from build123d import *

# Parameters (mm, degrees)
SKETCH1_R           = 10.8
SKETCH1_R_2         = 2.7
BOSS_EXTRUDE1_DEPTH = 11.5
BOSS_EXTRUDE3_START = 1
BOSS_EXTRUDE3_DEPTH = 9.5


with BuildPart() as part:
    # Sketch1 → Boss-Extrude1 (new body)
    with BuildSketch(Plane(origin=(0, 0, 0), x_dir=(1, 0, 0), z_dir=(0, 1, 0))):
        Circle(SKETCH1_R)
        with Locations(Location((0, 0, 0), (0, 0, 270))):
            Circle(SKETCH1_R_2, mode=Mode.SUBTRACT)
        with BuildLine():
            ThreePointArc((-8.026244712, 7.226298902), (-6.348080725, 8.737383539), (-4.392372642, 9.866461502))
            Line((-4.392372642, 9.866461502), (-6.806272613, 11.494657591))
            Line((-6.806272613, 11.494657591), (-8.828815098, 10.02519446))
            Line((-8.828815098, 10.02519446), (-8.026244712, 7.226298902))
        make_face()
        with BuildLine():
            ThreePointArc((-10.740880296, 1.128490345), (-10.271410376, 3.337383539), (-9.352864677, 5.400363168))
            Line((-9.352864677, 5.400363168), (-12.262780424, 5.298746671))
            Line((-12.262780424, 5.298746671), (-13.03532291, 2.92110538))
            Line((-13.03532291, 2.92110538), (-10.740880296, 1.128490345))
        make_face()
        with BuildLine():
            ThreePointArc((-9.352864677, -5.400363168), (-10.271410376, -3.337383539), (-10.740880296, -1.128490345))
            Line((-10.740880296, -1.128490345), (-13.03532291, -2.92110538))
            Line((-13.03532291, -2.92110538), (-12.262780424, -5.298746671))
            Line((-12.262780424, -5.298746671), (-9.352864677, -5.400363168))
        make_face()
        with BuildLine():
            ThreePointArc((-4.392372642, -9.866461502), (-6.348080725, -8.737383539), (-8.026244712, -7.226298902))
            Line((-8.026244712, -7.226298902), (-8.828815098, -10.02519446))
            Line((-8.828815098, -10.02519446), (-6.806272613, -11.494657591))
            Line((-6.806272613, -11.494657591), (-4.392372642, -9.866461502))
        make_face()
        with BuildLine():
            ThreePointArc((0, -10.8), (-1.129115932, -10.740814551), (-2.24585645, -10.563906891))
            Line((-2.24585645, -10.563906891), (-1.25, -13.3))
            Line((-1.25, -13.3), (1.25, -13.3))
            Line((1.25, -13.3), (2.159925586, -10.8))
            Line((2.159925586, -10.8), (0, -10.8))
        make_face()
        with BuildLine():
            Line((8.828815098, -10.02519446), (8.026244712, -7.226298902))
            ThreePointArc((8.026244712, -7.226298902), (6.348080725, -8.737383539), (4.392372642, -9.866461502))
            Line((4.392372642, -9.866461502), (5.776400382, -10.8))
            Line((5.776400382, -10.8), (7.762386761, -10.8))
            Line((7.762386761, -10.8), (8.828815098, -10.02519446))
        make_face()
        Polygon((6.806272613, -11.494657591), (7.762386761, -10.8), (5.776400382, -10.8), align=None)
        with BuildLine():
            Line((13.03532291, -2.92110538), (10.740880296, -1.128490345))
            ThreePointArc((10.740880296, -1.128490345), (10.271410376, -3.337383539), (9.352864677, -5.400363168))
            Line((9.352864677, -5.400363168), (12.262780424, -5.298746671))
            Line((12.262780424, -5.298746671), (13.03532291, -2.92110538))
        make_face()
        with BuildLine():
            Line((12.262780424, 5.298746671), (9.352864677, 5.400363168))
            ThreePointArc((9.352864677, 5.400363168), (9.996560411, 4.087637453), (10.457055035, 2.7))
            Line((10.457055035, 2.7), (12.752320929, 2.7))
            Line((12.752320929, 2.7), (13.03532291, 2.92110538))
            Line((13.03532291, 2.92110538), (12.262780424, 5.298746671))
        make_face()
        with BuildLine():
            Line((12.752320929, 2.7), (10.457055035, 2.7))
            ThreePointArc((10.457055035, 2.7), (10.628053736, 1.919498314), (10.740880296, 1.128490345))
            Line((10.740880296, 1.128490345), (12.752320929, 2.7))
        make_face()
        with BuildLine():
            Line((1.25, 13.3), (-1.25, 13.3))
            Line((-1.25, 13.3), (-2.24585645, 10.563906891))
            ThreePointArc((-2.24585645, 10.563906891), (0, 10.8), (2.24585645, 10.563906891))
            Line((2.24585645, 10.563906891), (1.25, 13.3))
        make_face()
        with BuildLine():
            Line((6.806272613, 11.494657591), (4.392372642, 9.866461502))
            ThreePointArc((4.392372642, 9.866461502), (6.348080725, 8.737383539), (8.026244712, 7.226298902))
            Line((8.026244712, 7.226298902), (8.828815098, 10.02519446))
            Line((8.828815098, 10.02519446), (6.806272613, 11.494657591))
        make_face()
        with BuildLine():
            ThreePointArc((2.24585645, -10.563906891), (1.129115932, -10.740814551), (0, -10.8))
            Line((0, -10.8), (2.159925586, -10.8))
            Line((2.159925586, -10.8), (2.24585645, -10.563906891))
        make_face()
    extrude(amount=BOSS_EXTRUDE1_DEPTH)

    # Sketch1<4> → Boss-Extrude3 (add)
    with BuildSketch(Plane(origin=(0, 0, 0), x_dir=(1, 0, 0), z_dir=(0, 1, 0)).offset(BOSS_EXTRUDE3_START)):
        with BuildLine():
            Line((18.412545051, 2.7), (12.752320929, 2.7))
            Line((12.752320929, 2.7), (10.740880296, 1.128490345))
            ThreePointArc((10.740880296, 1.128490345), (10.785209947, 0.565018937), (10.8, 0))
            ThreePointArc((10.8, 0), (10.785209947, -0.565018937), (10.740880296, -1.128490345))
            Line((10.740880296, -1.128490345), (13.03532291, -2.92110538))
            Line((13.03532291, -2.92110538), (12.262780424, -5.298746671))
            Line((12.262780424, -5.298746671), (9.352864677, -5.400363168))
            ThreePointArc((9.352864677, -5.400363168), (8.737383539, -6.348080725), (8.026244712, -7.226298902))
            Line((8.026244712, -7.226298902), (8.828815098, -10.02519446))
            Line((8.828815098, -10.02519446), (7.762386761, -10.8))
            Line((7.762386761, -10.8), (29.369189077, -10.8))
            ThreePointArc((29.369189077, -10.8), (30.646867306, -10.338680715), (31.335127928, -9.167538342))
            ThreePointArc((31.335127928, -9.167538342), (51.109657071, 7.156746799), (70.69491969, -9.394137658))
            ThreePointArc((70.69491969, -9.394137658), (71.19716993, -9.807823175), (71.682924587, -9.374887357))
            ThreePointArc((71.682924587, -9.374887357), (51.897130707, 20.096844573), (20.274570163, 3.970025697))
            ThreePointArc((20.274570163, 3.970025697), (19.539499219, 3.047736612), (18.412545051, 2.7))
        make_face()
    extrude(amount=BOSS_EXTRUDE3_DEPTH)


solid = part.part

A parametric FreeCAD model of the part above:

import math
import FreeCAD as App
import Part
import Sketcher
from FreeCAD import Vector
Q = App.Units.Quantity

doc = App.newDocument("Part")
body = doc.addObject("PartDesign::Body", "Body")

sketch1 = doc.addObject("Sketcher::SketchObject", "Sketch")
body.addObject(sketch1)
sketch1.AttachmentSupport = (doc.XZ_Plane, [""])
sketch1.MapMode = "FlatFace"
sketch1.addGeometry(Part.LineSegment(Vector(-4.39, -9.87, 0), Vector(-6.81, -11.49, 0)), False)
sketch1.addGeometry(Part.LineSegment(Vector(-6.81, -11.49, 0), Vector(-8.83, -10.03, 0)), False)
sketch1.addGeometry(Part.LineSegment(Vector(-8.83, -10.03, 0), Vector(-8.03, -7.23, 0)), False)
sketch1.addGeometry(Part.ArcOfCircle(Part.Circle(Vector(0, 0, 0), Vector(0, 0, 1), 10.8), math.radians(-150), math.radians(-138)), False)
sketch1.addGeometry(Part.LineSegment(Vector(-9.35, -5.4, 0), Vector(-12.26, -5.3, 0)), False)
sketch1.addGeometry(Part.LineSegment(Vector(-12.26, -5.3, 0), Vector(-13.04, -2.92, 0)), False)
sketch1.addGeometry(Part.LineSegment(Vector(-13.04, -2.92, 0), Vector(-10.74, -1.13, 0)), False)
sketch1.addGeometry(Part.ArcOfCircle(Part.Circle(Vector(0, 0, 0), Vector(0, 0, 1), 10.8), math.radians(174), math.radians(186)), False)
sketch1.addGeometry(Part.LineSegment(Vector(-10.74, 1.13, 0), Vector(-13.04, 2.92, 0)), False)
sketch1.addGeometry(Part.LineSegment(Vector(-13.04, 2.92, 0), Vector(-12.26, 5.3, 0)), False)
sketch1.addGeometry(Part.LineSegment(Vector(-12.26, 5.3, 0), Vector(-9.35, 5.4, 0)), False)
sketch1.addGeometry(Part.ArcOfCircle(Part.Circle(Vector(0, 0, 0), Vector(0, 0, 1), 10.8), math.radians(138), math.radians(150)), False)
sketch1.addGeometry(Part.LineSegment(Vector(-8.03, 7.23, 0), Vector(-8.83, 10.03, 0)), False)
sketch1.addGeometry(Part.LineSegment(Vector(-8.83, 10.03, 0), Vector(-6.81, 11.49, 0)), False)
sketch1.addGeometry(Part.LineSegment(Vector(-6.81, 11.49, 0), Vector(-4.39, 9.87, 0)), False)
sketch1.addGeometry(Part.ArcOfCircle(Part.Circle(Vector(0, 0, 0), Vector(0, 0, 1), 10.8), math.radians(102), math.radians(114)), False)
sketch1.addGeometry(Part.LineSegment(Vector(-2.25, 10.56, 0), Vector(-1.25, 13.3, 0)), False)
sketch1.addGeometry(Part.LineSegment(Vector(-1.25, 13.3, 0), Vector(1.25, 13.3, 0)), False)
sketch1.addGeometry(Part.LineSegment(Vector(1.25, 13.3, 0), Vector(2.16, 10.8, 0)), False)
sketch1.addGeometry(Part.LineSegment(Vector(2.16, 10.8, 0), Vector(2.25, 10.56, 0)), False)
sketch1.addGeometry(Part.ArcOfCircle(Part.Circle(Vector(0, 0, 0), Vector(0, 0, 1), 10.8), math.radians(66), math.radians(78)), False)
sketch1.addGeometry(Part.LineSegment(Vector(4.39, 9.87, 0), Vector(5.78, 10.8, 0)), False)
sketch1.addGeometry(Part.LineSegment(Vector(5.78, 10.8, 0), Vector(6.81, 11.49, 0)), False)
sketch1.addGeometry(Part.LineSegment(Vector(6.81, 11.49, 0), Vector(7.76, 10.8, 0)), False)
sketch1.addGeometry(Part.LineSegment(Vector(7.76, 10.8, 0), Vector(8.83, 10.03, 0)), False)
sketch1.addGeometry(Part.LineSegment(Vector(8.83, 10.03, 0), Vector(8.03, 7.23, 0)), False)
sketch1.addGeometry(Part.ArcOfCircle(Part.Circle(Vector(0, 0, 0), Vector(0, 0, 1), 10.8), math.radians(30), math.radians(42)), False)
sketch1.addGeometry(Part.LineSegment(Vector(9.35, 5.4, 0), Vector(12.26, 5.3, 0)), False)
sketch1.addGeometry(Part.LineSegment(Vector(12.26, 5.3, 0), Vector(13.04, 2.92, 0)), False)
sketch1.addGeometry(Part.LineSegment(Vector(13.04, 2.92, 0), Vector(10.74, 1.13, 0)), False)
sketch1.addGeometry(Part.ArcOfCircle(Part.Circle(Vector(0, 0, 0), Vector(0, 0, 1), 10.8), math.radians(-6), math.radians(6)), False)
sketch1.addGeometry(Part.LineSegment(Vector(10.74, -1.13, 0), Vector(12.75, -2.7, 0)), False)
sketch1.addGeometry(Part.LineSegment(Vector(12.75, -2.7, 0), Vector(13.04, -2.92, 0)), False)
sketch1.addGeometry(Part.LineSegment(Vector(13.04, -2.92, 0), Vector(12.26, -5.3, 0)), False)
sketch1.addGeometry(Part.LineSegment(Vector(12.26, -5.3, 0), Vector(9.35, -5.4, 0)), False)
sketch1.addGeometry(Part.ArcOfCircle(Part.Circle(Vector(0, 0, 0), Vector(0, 0, 1), 10.8), math.radians(-42), math.radians(-30)), False)
sketch1.addGeometry(Part.LineSegment(Vector(8.03, -7.23, 0), Vector(8.83, -10.03, 0)), False)
sketch1.addGeometry(Part.LineSegment(Vector(8.83, -10.03, 0), Vector(6.81, -11.49, 0)), False)
sketch1.addGeometry(Part.LineSegment(Vector(6.81, -11.49, 0), Vector(4.39, -9.87, 0)), False)
sketch1.addGeometry(Part.ArcOfCircle(Part.Circle(Vector(0, 0, 0), Vector(0, 0, 1), 10.8), math.radians(-78), math.radians(-66)), False)
sketch1.addGeometry(Part.LineSegment(Vector(2.25, -10.56, 0), Vector(1.25, -13.3, 0)), False)
sketch1.addGeometry(Part.LineSegment(Vector(1.25, -13.3, 0), Vector(-1.25, -13.3, 0)), False)
sketch1.addGeometry(Part.LineSegment(Vector(-1.25, -13.3, 0), Vector(-2.25, -10.56, 0)), False)
sketch1.addGeometry(Part.ArcOfCircle(Part.Circle(Vector(0, 0, 0), Vector(0, 0, 1), 10.8), math.radians(-114), math.radians(-102)), False)
sketch1.addGeometry(Part.Circle(Vector(0, 0, 0), Vector(0, 0, 1), 2.7), False)
sketch1.addConstraint(Sketcher.Constraint("Coincident", 0, 2, 1, 1))
sketch1.addConstraint(Sketcher.Constraint("Coincident", 1, 2, 2, 1))
sketch1.addConstraint(Sketcher.Constraint("Coincident", 2, 2, 3, 2))
sketch1.addConstraint(Sketcher.Constraint("Coincident", 3, 1, 4, 1))
sketch1.addConstraint(Sketcher.Constraint("Coincident", 4, 2, 5, 1))
sketch1.addConstraint(Sketcher.Constraint("Coincident", 5, 2, 6, 1))
sketch1.addConstraint(Sketcher.Constraint("Coincident", 6, 2, 7, 2))
sketch1.addConstraint(Sketcher.Constraint("Coincident", 7, 1, 8, 1))
sketch1.addConstraint(Sketcher.Constraint("Coincident", 8, 2, 9, 1))
sketch1.addConstraint(Sketcher.Constraint("Coincident", 9, 2, 10, 1))
sketch1.addConstraint(Sketcher.Constraint("Coincident", 10, 2, 11, 2))
sketch1.addConstraint(Sketcher.Constraint("Coincident", 11, 1, 12, 1))
sketch1.addConstraint(Sketcher.Constraint("Coincident", 12, 2, 13, 1))
sketch1.addConstraint(Sketcher.Constraint("Coincident", 13, 2, 14, 1))
sketch1.addConstraint(Sketcher.Constraint("Coincident", 14, 2, 15, 2))
sketch1.addConstraint(Sketcher.Constraint("Coincident", 15, 1, 16, 1))
sketch1.addConstraint(Sketcher.Constraint("Coincident", 16, 2, 17, 1))
sketch1.addConstraint(Sketcher.Constraint("Coincident", 17, 2, 18, 1))
sketch1.addConstraint(Sketcher.Constraint("Coincident", 18, 2, 19, 1))
sketch1.addConstraint(Sketcher.Constraint("Coincident", 19, 2, 20, 2))
sketch1.addConstraint(Sketcher.Constraint("Coincident", 20, 1, 21, 1))
sketch1.addConstraint(Sketcher.Constraint("Coincident", 21, 2, 22, 1))
sketch1.addConstraint(Sketcher.Constraint("Coincident", 22, 2, 23, 1))
sketch1.addConstraint(Sketcher.Constraint("Coincident", 23, 2, 24, 1))
sketch1.addConstraint(Sketcher.Constraint("Coincident", 24, 2, 25, 1))
sketch1.addConstraint(Sketcher.Constraint("Coincident", 25, 2, 26, 2))
sketch1.addConstraint(Sketcher.Constraint("Coincident", 26, 1, 27, 1))
sketch1.addConstraint(Sketcher.Constraint("Coincident", 27, 2, 28, 1))
sketch1.addConstraint(Sketcher.Constraint("Coincident", 28, 2, 29, 1))
sketch1.addConstraint(Sketcher.Constraint("Coincident", 29, 2, 30, 2))
sketch1.addConstraint(Sketcher.Constraint("Coincident", 30, 1, 31, 1))
sketch1.addConstraint(Sketcher.Constraint("Coincident", 31, 2, 32, 1))
sketch1.addConstraint(Sketcher.Constraint("Coincident", 32, 2, 33, 1))
sketch1.addConstraint(Sketcher.Constraint("Coincident", 33, 2, 34, 1))
sketch1.addConstraint(Sketcher.Constraint("Coincident", 34, 2, 35, 2))
sketch1.addConstraint(Sketcher.Constraint("Coincident", 35, 1, 36, 1))
sketch1.addConstraint(Sketcher.Constraint("Coincident", 36, 2, 37, 1))
sketch1.addConstraint(Sketcher.Constraint("Coincident", 37, 2, 38, 1))
sketch1.addConstraint(Sketcher.Constraint("Coincident", 38, 2, 39, 2))
sketch1.addConstraint(Sketcher.Constraint("Coincident", 39, 1, 40, 1))
sketch1.addConstraint(Sketcher.Constraint("Coincident", 40, 2, 41, 1))
sketch1.addConstraint(Sketcher.Constraint("Coincident", 41, 2, 42, 1))
sketch1.addConstraint(Sketcher.Constraint("Coincident", 42, 2, 43, 2))
sketch1.addConstraint(Sketcher.Constraint("Coincident", 43, 1, 0, 1))
sketch1.addConstraint(Sketcher.Constraint("Horizontal", 17))
sketch1.addConstraint(Sketcher.Constraint("Horizontal", 41))
sketch1.addConstraint(Sketcher.Constraint("Coincident", 3, 3, -1, 1))
sketch1.addConstraint(Sketcher.Constraint("Coincident", 7, 3, -1, 1))
sketch1.addConstraint(Sketcher.Constraint("Coincident", 11, 3, -1, 1))
sketch1.addConstraint(Sketcher.Constraint("Coincident", 15, 3, -1, 1))
sketch1.addConstraint(Sketcher.Constraint("Coincident", 20, 3, -1, 1))
sketch1.addConstraint(Sketcher.Constraint("Coincident", 26, 3, -1, 1))
sketch1.addConstraint(Sketcher.Constraint("Coincident", 30, 3, -1, 1))
sketch1.addConstraint(Sketcher.Constraint("Coincident", 35, 3, -1, 1))
sketch1.addConstraint(Sketcher.Constraint("Coincident", 39, 3, -1, 1))
sketch1.addConstraint(Sketcher.Constraint("Coincident", 43, 3, -1, 1))
sketch1.addConstraint(Sketcher.Constraint("Coincident", 44, 3, -1, 1))
sketch1.addConstraint(Sketcher.Constraint("Equal", 3, 7))
sketch1.addConstraint(Sketcher.Constraint("Equal", 7, 11))
sketch1.addConstraint(Sketcher.Constraint("Equal", 11, 15))
sketch1.addConstraint(Sketcher.Constraint("Equal", 15, 20))
sketch1.addConstraint(Sketcher.Constraint("Equal", 20, 26))
sketch1.addConstraint(Sketcher.Constraint("Equal", 26, 30))
sketch1.addConstraint(Sketcher.Constraint("Equal", 30, 35))
sketch1.addConstraint(Sketcher.Constraint("Equal", 35, 39))
sketch1.addConstraint(Sketcher.Constraint("Equal", 39, 43))
sketch1.addConstraint(Sketcher.Constraint("Symmetric", 0, 2, 22, 2, -1, 1))
sketch1.addConstraint(Sketcher.Constraint("Symmetric", 1, 2, 24, 2, -1, 1))
sketch1.addConstraint(Sketcher.Constraint("Symmetric", 4, 2, 27, 2, -1, 1))
sketch1.addConstraint(Sketcher.Constraint("Symmetric", 5, 2, 28, 2, -1, 1))
sketch1.addConstraint(Sketcher.Constraint("Symmetric", 8, 2, 32, 2, -1, 1))
sketch1.addConstraint(Sketcher.Constraint("Symmetric", 9, 2, 33, 2, -1, 1))
sketch1.addConstraint(Sketcher.Constraint("Symmetric", 12, 2, 36, 2, -1, 1))
sketch1.addConstraint(Sketcher.Constraint("Symmetric", 13, 2, 37, 2, -1, 1))
sketch1.addConstraint(Sketcher.Constraint("Symmetric", 16, 2, 40, 2, -1, 1))
sketch1.addConstraint(Sketcher.Constraint("Symmetric", 13, 2, 22, 2, -2))
sketch1.addConstraint(Sketcher.Constraint("Symmetric", 12, 2, 24, 2, -2))
sketch1.addConstraint(Sketcher.Constraint("Symmetric", 9, 2, 27, 2, -2))
sketch1.addConstraint(Sketcher.Constraint("Symmetric", 8, 2, 28, 2, -2))
sketch1.addConstraint(Sketcher.Constraint("Parallel", 18, 19))
sketch1.addConstraint(Sketcher.Constraint("Parallel", 0, 21))
sketch1.addConstraint(Sketcher.Constraint("Parallel", 21, 22))
sketch1.addConstraint(Sketcher.Constraint("Parallel", 1, 23))
sketch1.addConstraint(Sketcher.Constraint("Parallel", 2, 25))
sketch1.addConstraint(Sketcher.Constraint("Parallel", 4, 27))
sketch1.addConstraint(Sketcher.Constraint("Parallel", 6, 29))
sketch1.addConstraint(Sketcher.Constraint("Parallel", 8, 31))
sketch1.addConstraint(Sketcher.Constraint("Parallel", 31, 32))
sketch1.addConstraint(Sketcher.Constraint("Parallel", 10, 34))
sketch1.addConstraint(Sketcher.Constraint("Parallel", 12, 36))
sketch1.addConstraint(Sketcher.Constraint("Parallel", 14, 38))
sketch1.addConstraint(Sketcher.Constraint("Parallel", 16, 40))
sketch1.addConstraint(Sketcher.Constraint("Parallel", 19, 42))
sketch1.addConstraint(Sketcher.Constraint("Horizontal", 15, 1, 19, 2))
sketch1.addConstraint(Sketcher.Constraint("Horizontal", 14, 2, 20, 1))
sketch1.addConstraint(Sketcher.Constraint("Horizontal", 18, 2, 21, 2))
sketch1.addConstraint(Sketcher.Constraint("Horizontal", 21, 2, 23, 2))
sketch1.addConstraint(Sketcher.Constraint("Horizontal", 11, 1, 25, 2))
sketch1.addConstraint(Sketcher.Constraint("Horizontal", 10, 2, 26, 1))
sketch1.addConstraint(Sketcher.Constraint("Horizontal", 7, 1, 29, 2))
sketch1.addConstraint(Sketcher.Constraint("Horizontal", 39, 1, 42, 2))
sketch1.addConstraint(Sketcher.Constraint("Vertical", 17, 2, 40, 2))
sketch1.addConstraint(Sketcher.Constraint("Equal", 0, 2))
sketch1.addConstraint(Sketcher.Constraint("Equal", 2, 4))
sketch1.addConstraint(Sketcher.Constraint("Equal", 1, 5))
sketch1.addConstraint(Sketcher.Constraint("Equal", 4, 6))
sketch1.addConstraint(Sketcher.Constraint("Equal", 14, 16))
sketch1.addConstraint(Sketcher.Constraint("Diameter", 44, Q("5.4 mm")))
sketch1.addConstraint(Sketcher.Constraint("Radius", 3, Q("10.8 mm")))
sketch1.addConstraint(Sketcher.Constraint("Angle", 0, Q("-146 deg")))
sketch1.addConstraint(Sketcher.Constraint("Angle", 1, Q("144 deg")))
sketch1.addConstraint(Sketcher.Constraint("Angle", 2, Q("74 deg")))
sketch1.addConstraint(Sketcher.Constraint("Angle", 4, Q("178 deg")))
sketch1.addConstraint(Sketcher.Constraint("Angle", 5, Q("108 deg")))
sketch1.addConstraint(Sketcher.Constraint("Angle", 6, Q("38 deg")))
sketch1.addConstraint(Sketcher.Constraint("Angle", 16, Q("70 deg")))
sketch1.addConstraint(Sketcher.Constraint("DistanceX", 17, 1, 17, 2, Q("2.5 mm")))
sketch1.addConstraint(Sketcher.Constraint("Distance", 1, Q("2.5 mm")))
sketch1.addConstraint(Sketcher.Constraint("DistanceY", -1, 1, 16, 2, Q("13.3 mm")))
sketch1.addConstraint(Sketcher.Constraint("DistanceY", -1, 1, 18, 2, Q("10.8 mm")))
sketch1.addConstraint(Sketcher.Constraint("DistanceY", 31, 2, -1, 1, Q("2.7 mm")))
pad1 = doc.addObject("PartDesign::Pad", "Pad")
body.addObject(pad1)
pad1.Profile = sketch1
pad1.Length = 11.5
pad1.Reversed = True

sketch2 = doc.addObject("Sketcher::SketchObject", "Sketch001")
body.addObject(sketch2)
sketch2.AttachmentSupport = (doc.XZ_Plane, [""])
sketch2.MapMode = "FlatFace"
sketch2.AttachmentOffset = App.Placement(Vector(0, 0, -1), App.Rotation())
sketch2.addGeometry(Part.LineSegment(Vector(18.4, -2.7, 0), Vector(12.8, -2.7, 0)), False)
sketch2.addGeometry(Part.LineSegment(Vector(12.8, -2.7, 0), Vector(10.7, -1.1, 0)), False)
sketch2.addGeometry(Part.ArcOfCircle(Part.Circle(Vector(0, 0, 0), Vector(0, 0, 1), 10.8), math.radians(-6), math.radians(0)), False)
sketch2.addGeometry(Part.ArcOfCircle(Part.Circle(Vector(0, 0, 0), Vector(0, 0, 1), 10.8), math.radians(0), math.radians(6)), False)
sketch2.addGeometry(Part.LineSegment(Vector(10.7, 1.1, 0), Vector(13, 2.9, 0)), False)
sketch2.addGeometry(Part.LineSegment(Vector(13, 2.9, 0), Vector(12.3, 5.3, 0)), False)
sketch2.addGeometry(Part.LineSegment(Vector(12.3, 5.3, 0), Vector(9.4, 5.4, 0)), False)
sketch2.addGeometry(Part.ArcOfCircle(Part.Circle(Vector(0, 0, 0), Vector(0, 0, 1), 10.8), math.radians(30), math.radians(42)), False)
sketch2.addGeometry(Part.LineSegment(Vector(8, 7.2, 0), Vector(8.8, 10, 0)), False)
sketch2.addGeometry(Part.LineSegment(Vector(8.8, 10, 0), Vector(7.8, 10.8, 0)), False)
sketch2.addGeometry(Part.LineSegment(Vector(7.8, 10.8, 0), Vector(29.4, 10.8, 0)), False)
sketch2.addGeometry(Part.ArcOfCircle(Part.Circle(Vector(29.4, 8.8, 0), Vector(0, 0, 1), 2), math.radians(11), math.radians(90)), False)
sketch2.addGeometry(Part.ArcOfCircle(Part.Circle(Vector(51, 12.8, 0), Vector(0, 0, 1), 20), math.radians(-169), math.radians(-10)), False)
sketch2.addGeometry(Part.ArcOfCircle(Part.Circle(Vector(71.2, 9.3, 0), Vector(0, 0, 1), 0.5), math.radians(8), math.radians(170)), False)
sketch2.addGeometry(Part.ArcOfCircle(Part.Circle(Vector(45.2, 5.8, 0), Vector(0, 0, 1), 26.7), math.radians(-159), math.radians(8)), False)
sketch2.addGeometry(Part.ArcOfCircle(Part.Circle(Vector(18.4, -4.7, 0), Vector(0, 0, 1), 2), math.radians(21), math.radians(90)), False)
sketch2.addConstraint(Sketcher.Constraint("Coincident", 0, 2, 1, 1))
sketch2.addConstraint(Sketcher.Constraint("Coincident", 1, 2, 2, 1))
sketch2.addConstraint(Sketcher.Constraint("Tangent", 2, 2, 3, 1))
sketch2.addConstraint(Sketcher.Constraint("Coincident", 3, 2, 4, 1))
sketch2.addConstraint(Sketcher.Constraint("Coincident", 4, 2, 5, 1))
sketch2.addConstraint(Sketcher.Constraint("Coincident", 5, 2, 6, 1))
sketch2.addConstraint(Sketcher.Constraint("Coincident", 6, 2, 7, 1))
sketch2.addConstraint(Sketcher.Constraint("Coincident", 7, 2, 8, 1))
sketch2.addConstraint(Sketcher.Constraint("Coincident", 8, 2, 9, 1))
sketch2.addConstraint(Sketcher.Constraint("Coincident", 9, 2, 10, 1))
sketch2.addConstraint(Sketcher.Constraint("Tangent", 10, 2, 11, 2))
sketch2.addConstraint(Sketcher.Constraint("Tangent", 11, 1, 12, 1))
sketch2.addConstraint(Sketcher.Constraint("Tangent", 12, 2, 13, 2))
sketch2.addConstraint(Sketcher.Constraint("Tangent", 13, 1, 14, 2))
sketch2.addConstraint(Sketcher.Constraint("Tangent", 14, 1, 15, 1))
sketch2.addConstraint(Sketcher.Constraint("Tangent", 15, 2, 0, 1))
sketch2.addConstraint(Sketcher.Constraint("Horizontal", 0))
sketch2.addConstraint(Sketcher.Constraint("Horizontal", 10))
sketch2.addConstraint(Sketcher.Constraint("Coincident", 2, 3, -1, 1))
sketch2.addConstraint(Sketcher.Constraint("Coincident", 7, 3, -1, 1))
sketch2.addConstraint(Sketcher.Constraint("Equal", 2, 3))
sketch2.addConstraint(Sketcher.Constraint("Equal", 3, 7))
sketch2.addConstraint(Sketcher.Constraint("Equal", 11, 15))
sketch2.addConstraint(Sketcher.Constraint("PointOnObject", 2, 2, -1))
sketch2.addConstraint(Sketcher.Constraint("Vertical", 1, 2, 3, 2))
sketch2.addConstraint(Sketcher.Constraint("Equal", 4, 6))
sketch2.addConstraint(Sketcher.Constraint("Equal", 6, 8))
sketch2.addConstraint(Sketcher.Constraint("Radius", 11, Q("2 mm")))
sketch2.addConstraint(Sketcher.Constraint("Radius", 12, Q("20 mm")))
sketch2.addConstraint(Sketcher.Constraint("Radius", 2, Q("10.8 mm")))
sketch2.addConstraint(Sketcher.Constraint("Radius", 13, Q("0.5 mm")))
sketch2.addConstraint(Sketcher.Constraint("Angle", 1, Q("142 deg")))
sketch2.addConstraint(Sketcher.Constraint("Angle", 4, Q("38 deg")))
sketch2.addConstraint(Sketcher.Constraint("Angle", 5, Q("108 deg")))
sketch2.addConstraint(Sketcher.Constraint("Angle", 6, Q("178 deg")))
sketch2.addConstraint(Sketcher.Constraint("Angle", 8, Q("74 deg")))
sketch2.addConstraint(Sketcher.Constraint("Angle", 9, Q("144 deg")))
sketch2.addConstraint(Sketcher.Constraint("Distance", 5, Q("2.5 mm")))
sketch2.addConstraint(Sketcher.Constraint("DistanceY", -1, 1, 11, 3, Q("8.8 mm")))
sketch2.addConstraint(Sketcher.Constraint("DistanceY", 15, 3, -1, 1, Q("4.7 mm")))
sketch2.addConstraint(Sketcher.Constraint("Radius", 14, Q("26.747292 mm")))
sketch2.addConstraint(Sketcher.Constraint("DistanceX", 0, 2, 4, 2, Q("0.283002 mm")))
sketch2.addConstraint(Sketcher.Constraint("DistanceY", -1, 1, 7, 2, Q("7.226299 mm")))
sketch2.addConstraint(Sketcher.Constraint("DistanceY", 11, 1, 12, 2, Q("0.226599 mm")))
sketch2.addConstraint(Sketcher.Constraint("DistanceX", 0, 2, 0, 1, Q("5.660224 mm")))
sketch2.addConstraint(Sketcher.Constraint("DistanceX", 10, 1, 10, 2, Q("21.606802 mm")))
sketch2.addConstraint(Sketcher.Constraint("DistanceY", -1, 1, 12, 3, Q("12.842922 mm")))
pad2 = doc.addObject("PartDesign::Pad", "Pad001")
body.addObject(pad2)
pad2.Profile = sketch2
pad2.Length = 9.5
pad2.Reversed = True

doc.recompute()
